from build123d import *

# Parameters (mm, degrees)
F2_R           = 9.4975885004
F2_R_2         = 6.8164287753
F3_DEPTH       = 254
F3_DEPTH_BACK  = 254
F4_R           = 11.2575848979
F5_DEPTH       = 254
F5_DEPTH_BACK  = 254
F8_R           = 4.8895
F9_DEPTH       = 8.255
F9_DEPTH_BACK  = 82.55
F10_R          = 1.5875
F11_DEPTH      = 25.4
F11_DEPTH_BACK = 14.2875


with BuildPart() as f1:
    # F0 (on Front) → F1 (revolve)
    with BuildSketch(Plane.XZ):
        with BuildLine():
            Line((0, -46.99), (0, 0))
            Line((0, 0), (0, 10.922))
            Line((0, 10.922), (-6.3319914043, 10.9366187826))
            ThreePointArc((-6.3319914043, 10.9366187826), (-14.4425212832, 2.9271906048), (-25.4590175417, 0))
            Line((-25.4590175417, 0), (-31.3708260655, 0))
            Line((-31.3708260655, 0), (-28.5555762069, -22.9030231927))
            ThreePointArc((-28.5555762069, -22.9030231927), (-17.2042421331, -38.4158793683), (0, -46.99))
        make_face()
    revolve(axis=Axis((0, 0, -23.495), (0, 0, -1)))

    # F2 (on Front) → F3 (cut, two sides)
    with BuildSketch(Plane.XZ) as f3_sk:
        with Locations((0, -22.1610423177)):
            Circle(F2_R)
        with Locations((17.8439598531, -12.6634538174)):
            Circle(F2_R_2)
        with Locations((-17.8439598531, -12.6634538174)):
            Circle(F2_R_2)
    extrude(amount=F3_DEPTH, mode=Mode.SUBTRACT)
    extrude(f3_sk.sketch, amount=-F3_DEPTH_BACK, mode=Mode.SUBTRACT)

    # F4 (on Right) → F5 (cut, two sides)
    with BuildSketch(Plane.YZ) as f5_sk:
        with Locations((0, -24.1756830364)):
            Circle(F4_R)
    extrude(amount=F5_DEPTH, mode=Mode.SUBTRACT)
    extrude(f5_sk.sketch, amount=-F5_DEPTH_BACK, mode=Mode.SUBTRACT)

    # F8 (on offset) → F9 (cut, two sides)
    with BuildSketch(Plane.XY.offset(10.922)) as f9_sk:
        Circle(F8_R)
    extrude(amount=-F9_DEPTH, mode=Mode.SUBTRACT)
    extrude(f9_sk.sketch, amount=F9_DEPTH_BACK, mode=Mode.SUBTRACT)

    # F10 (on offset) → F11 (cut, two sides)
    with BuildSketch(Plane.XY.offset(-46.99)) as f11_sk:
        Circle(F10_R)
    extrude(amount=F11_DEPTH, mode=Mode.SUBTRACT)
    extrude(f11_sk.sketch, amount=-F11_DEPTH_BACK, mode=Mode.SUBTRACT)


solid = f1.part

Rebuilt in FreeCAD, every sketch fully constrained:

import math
import FreeCAD as App
import Part
import Sketcher

V = App.Vector
Q = App.Units.Quantity

doc = App.newDocument("Part")
body = doc.addObject("PartDesign::Body", "Body")

# Sketch on XZ plane
sketch1 = body.newObject("Sketcher::SketchObject", "Sketch")
sketch1.AttachmentSupport = (doc.getObject("XZ_Plane"), [""])
sketch1.MapMode = "FlatFace"
sketch1.addGeometry(Part.LineSegment(V(0, -47, 0), V(0, 11, 0)), False)
sketch1.addGeometry(Part.LineSegment(V(0, 11, 0), V(-6, 11, 0)), False)
sketch1.addGeometry(Part.ArcOfCircle(Part.Circle(V(-25, 22, 0), V(0, 0, 1), 22), math.radians(-90), math.radians(-30)), False)
sketch1.addGeometry(Part.LineSegment(V(-25, 0, 0), V(-31, 0, 0)), False)
sketch1.addGeometry(Part.LineSegment(V(-31, 0, 0), V(-29, -23, 0)), False)
sketch1.addGeometry(Part.ArcOfCircle(Part.Circle(V(9, -7, 0), V(0, 0, 1), 41), math.radians(-157), math.radians(-103)), False)
sketch1.addConstraint(Sketcher.Constraint("Coincident", 0, 2, 1, 1))
sketch1.addConstraint(Sketcher.Constraint("Coincident", 1, 2, 2, 2))
sketch1.addConstraint(Sketcher.Constraint("Tangent", 2, 1, 3, 1))
sketch1.addConstraint(Sketcher.Constraint("Coincident", 3, 2, 4, 1))
sketch1.addConstraint(Sketcher.Constraint("Coincident", 4, 2, 5, 1))
sketch1.addConstraint(Sketcher.Constraint("Coincident", 5, 2, 0, 1))
sketch1.addConstraint(Sketcher.Constraint("Vertical", 0))
sketch1.addConstraint(Sketcher.Constraint("Horizontal", 3))
sketch1.addConstraint(Sketcher.Constraint("PointOnObject", 0, 2, -2))
sketch1.addConstraint(Sketcher.Constraint("PointOnObject", 2, 1, -1))
sketch1.addConstraint(Sketcher.Constraint("DistanceY", 0, 1, 0, 2, Q("2.28 in")))
sketch1.addConstraint(Sketcher.Constraint("DistanceY", -1, 1, 0, 2, Q("0.43 in")))
sketch1.addConstraint(Sketcher.Constraint("Radius", 2, 22.193914))
sketch1.addConstraint(Sketcher.Constraint("Radius", 5, 40.704815))
sketch1.addConstraint(Sketcher.Constraint("Distance", 4, 23.0754))
sketch1.addConstraint(Sketcher.Constraint("DistanceX", 3, 2, 3, 1, 5.911809))
sketch1.addConstraint(Sketcher.Constraint("Distance", 1, 6.332008))
sketch1.addConstraint(Sketcher.Constraint("DistanceY", 5, 3, -1, 1, 7.30189))
sketch1.addConstraint(Sketcher.Constraint("DistanceY", -1, 1, 1, 2, 10.936619))
revolution = body.newObject("PartDesign::Revolution", "Revolution")
revolution.Profile = sketch1
revolution.ReferenceAxis = (sketch1, ["V_Axis"])
revolution.Angle = 360

# Sketch on XZ plane
sketch2 = body.newObject("Sketcher::SketchObject", "Sketch001")
sketch2.AttachmentSupport = (doc.getObject("XZ_Plane"), [""])
sketch2.MapMode = "FlatFace"
sketch2.addGeometry(Part.Circle(V(0, -22, 0), V(0, 0, 1), 9), False)
sketch2.addGeometry(Part.Circle(V(18, -13, 0), V(0, 0, 1), 7), False)
sketch2.addGeometry(Part.Circle(V(-18, -13, 0), V(0, 0, 1), 7), False)
sketch2.addConstraint(Sketcher.Constraint("Equal", 1, 2))
sketch2.addConstraint(Sketcher.Constraint("Symmetric", 1, 3, 2, 3, -2))
sketch2.addConstraint(Sketcher.Constraint("PointOnObject", 0, 3, -2))
sketch2.addConstraint(Sketcher.Constraint("Diameter", 0, 18.995177))
sketch2.addConstraint(Sketcher.Constraint("Diameter", 1, 13.632858))
sketch2.addConstraint(Sketcher.Constraint("DistanceX", -1, 1, 1, 3, 17.84396))
sketch2.addConstraint(Sketcher.Constraint("DistanceY", 0, 3, 1, 3, 9.497589))
sketch2.addConstraint(Sketcher.Constraint("DistanceY", 0, 3, -1, 1, 22.161042))
pocket1 = body.newObject("PartDesign::Pocket", "Pocket")
pocket1.Profile = sketch2
pocket1.Type = "ThroughAll"
pocket1.Midplane = True

# Sketch on YZ plane
sketch3 = body.newObject("Sketcher::SketchObject", "Sketch002")
sketch3.AttachmentSupport = (doc.getObject("YZ_Plane"), [""])
sketch3.MapMode = "FlatFace"
sketch3.addGeometry(Part.Circle(V(0, -24, 0), V(0, 0, 1), 11), False)
sketch3.addConstraint(Sketcher.Constraint("PointOnObject", 0, 3, -2))
sketch3.addConstraint(Sketcher.Constraint("Diameter", 0, 22.51517))
sketch3.addConstraint(Sketcher.Constraint("DistanceY", 0, 3, -1, 1, 24.175683))
pocket2 = body.newObject("PartDesign::Pocket", "Pocket001")
pocket2.Profile = sketch3
pocket2.Type = "ThroughAll"
pocket2.Midplane = True

# Sketch on XY plane
sketch4 = body.newObject("Sketcher::SketchObject", "Sketch003")
sketch4.AttachmentSupport = (doc.getObject("XY_Plane"), [""])
sketch4.MapMode = "FlatFace"
sketch4.AttachmentOffset = App.Placement(V(0, 0, 0.43 * 25.4), App.Rotation())
sketch4.addGeometry(Part.Circle(V(0, 0, 0), V(0, 0, 1), 4.9), False)
sketch4.addConstraint(Sketcher.Constraint("Coincident", 0, 3, -1, 1))
sketch4.addConstraint(Sketcher.Constraint("Diameter", 0, Q("0.385 in")))
pocket3 = body.newObject("PartDesign::Pocket", "Pocket002")
pocket3.Profile = sketch4
pocket3.Type = "TwoLengths"
pocket3.Length = Q("0.325 in")
pocket3.Length2 = Q("3.25 in")

# Sketch on XY plane
sketch5 = body.newObject("Sketcher::SketchObject", "Sketch004")
sketch5.AttachmentSupport = (doc.getObject("XY_Plane"), [""])
sketch5.MapMode = "FlatFace"
sketch5.AttachmentOffset = App.Placement(V(0, 0, -1.85 * 25.4), App.Rotation())
sketch5.addGeometry(Part.Circle(V(0, 0, 0), V(0, 0, 1), 1.6), False)
sketch5.addConstraint(Sketcher.Constraint("Coincident", 0, 3, -1, 1))
sketch5.addConstraint(Sketcher.Constraint("Diameter", 0, Q("0.125 in")))
pocket4 = body.newObject("PartDesign::Pocket", "Pocket003")
pocket4.Profile = sketch5
pocket4.Type = "TwoLengths"
pocket4.Length = Q("1 in")
pocket4.Length2 = Q("0.5625 in")
pocket4.Reversed = True

doc.recompute()
